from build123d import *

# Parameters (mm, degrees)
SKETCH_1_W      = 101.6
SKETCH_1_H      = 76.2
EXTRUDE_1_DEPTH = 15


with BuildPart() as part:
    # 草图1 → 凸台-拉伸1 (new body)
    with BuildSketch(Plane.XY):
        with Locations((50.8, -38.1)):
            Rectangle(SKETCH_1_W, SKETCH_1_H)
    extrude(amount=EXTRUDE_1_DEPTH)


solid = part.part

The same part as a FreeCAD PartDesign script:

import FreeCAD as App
import Part
import Sketcher

V = App.Vector
Q = App.Units.Quantity


def add_polygon(sketch, points):
    """Adds a closed chain of lines whose ends are joined by coincident constraints."""
    first, n = sketch.GeometryCount, len(points)
    for a, b in zip(points, points[1:] + points[:1]):
        sketch.addGeometry(Part.LineSegment(App.Vector(*a, 0), App.Vector(*b, 0)), False)
    for i in range(n):
        sketch.addConstraint(Sketcher.Constraint("Coincident", first + i, 2, first + (i + 1) % n, 1))

doc = App.newDocument("Part")
body = doc.addObject("PartDesign::Body", "Body")

sketch1 = body.newObject("Sketcher::SketchObject", "Sketch")
sketch1.AttachmentSupport = (doc.getObject("XY_Plane"), [""])
sketch1.MapMode = "FlatFace"
add_polygon(sketch1, [(0, 0), (0, -76.2), (101.6, -76.2), (101.6, 0)])
sketch1.addConstraint([
    Sketcher.Constraint("Vertical", 0),
    Sketcher.Constraint("Horizontal", 1),
    Sketcher.Constraint("Vertical", 2),
    Sketcher.Constraint("Horizontal", 3),
    Sketcher.Constraint("Coincident", 3, 2, -1, 1),
    Sketcher.Constraint("DistanceX", 1, 1, 1, 2, Q("4 in")),
    Sketcher.Constraint("DistanceY", 0, 2, 0, 1, Q("3 in")),
])
pad1 = body.newObject("PartDesign::Pad", "Pad")
pad1.Profile = sketch1
pad1.Length = 15

doc.recompute()
